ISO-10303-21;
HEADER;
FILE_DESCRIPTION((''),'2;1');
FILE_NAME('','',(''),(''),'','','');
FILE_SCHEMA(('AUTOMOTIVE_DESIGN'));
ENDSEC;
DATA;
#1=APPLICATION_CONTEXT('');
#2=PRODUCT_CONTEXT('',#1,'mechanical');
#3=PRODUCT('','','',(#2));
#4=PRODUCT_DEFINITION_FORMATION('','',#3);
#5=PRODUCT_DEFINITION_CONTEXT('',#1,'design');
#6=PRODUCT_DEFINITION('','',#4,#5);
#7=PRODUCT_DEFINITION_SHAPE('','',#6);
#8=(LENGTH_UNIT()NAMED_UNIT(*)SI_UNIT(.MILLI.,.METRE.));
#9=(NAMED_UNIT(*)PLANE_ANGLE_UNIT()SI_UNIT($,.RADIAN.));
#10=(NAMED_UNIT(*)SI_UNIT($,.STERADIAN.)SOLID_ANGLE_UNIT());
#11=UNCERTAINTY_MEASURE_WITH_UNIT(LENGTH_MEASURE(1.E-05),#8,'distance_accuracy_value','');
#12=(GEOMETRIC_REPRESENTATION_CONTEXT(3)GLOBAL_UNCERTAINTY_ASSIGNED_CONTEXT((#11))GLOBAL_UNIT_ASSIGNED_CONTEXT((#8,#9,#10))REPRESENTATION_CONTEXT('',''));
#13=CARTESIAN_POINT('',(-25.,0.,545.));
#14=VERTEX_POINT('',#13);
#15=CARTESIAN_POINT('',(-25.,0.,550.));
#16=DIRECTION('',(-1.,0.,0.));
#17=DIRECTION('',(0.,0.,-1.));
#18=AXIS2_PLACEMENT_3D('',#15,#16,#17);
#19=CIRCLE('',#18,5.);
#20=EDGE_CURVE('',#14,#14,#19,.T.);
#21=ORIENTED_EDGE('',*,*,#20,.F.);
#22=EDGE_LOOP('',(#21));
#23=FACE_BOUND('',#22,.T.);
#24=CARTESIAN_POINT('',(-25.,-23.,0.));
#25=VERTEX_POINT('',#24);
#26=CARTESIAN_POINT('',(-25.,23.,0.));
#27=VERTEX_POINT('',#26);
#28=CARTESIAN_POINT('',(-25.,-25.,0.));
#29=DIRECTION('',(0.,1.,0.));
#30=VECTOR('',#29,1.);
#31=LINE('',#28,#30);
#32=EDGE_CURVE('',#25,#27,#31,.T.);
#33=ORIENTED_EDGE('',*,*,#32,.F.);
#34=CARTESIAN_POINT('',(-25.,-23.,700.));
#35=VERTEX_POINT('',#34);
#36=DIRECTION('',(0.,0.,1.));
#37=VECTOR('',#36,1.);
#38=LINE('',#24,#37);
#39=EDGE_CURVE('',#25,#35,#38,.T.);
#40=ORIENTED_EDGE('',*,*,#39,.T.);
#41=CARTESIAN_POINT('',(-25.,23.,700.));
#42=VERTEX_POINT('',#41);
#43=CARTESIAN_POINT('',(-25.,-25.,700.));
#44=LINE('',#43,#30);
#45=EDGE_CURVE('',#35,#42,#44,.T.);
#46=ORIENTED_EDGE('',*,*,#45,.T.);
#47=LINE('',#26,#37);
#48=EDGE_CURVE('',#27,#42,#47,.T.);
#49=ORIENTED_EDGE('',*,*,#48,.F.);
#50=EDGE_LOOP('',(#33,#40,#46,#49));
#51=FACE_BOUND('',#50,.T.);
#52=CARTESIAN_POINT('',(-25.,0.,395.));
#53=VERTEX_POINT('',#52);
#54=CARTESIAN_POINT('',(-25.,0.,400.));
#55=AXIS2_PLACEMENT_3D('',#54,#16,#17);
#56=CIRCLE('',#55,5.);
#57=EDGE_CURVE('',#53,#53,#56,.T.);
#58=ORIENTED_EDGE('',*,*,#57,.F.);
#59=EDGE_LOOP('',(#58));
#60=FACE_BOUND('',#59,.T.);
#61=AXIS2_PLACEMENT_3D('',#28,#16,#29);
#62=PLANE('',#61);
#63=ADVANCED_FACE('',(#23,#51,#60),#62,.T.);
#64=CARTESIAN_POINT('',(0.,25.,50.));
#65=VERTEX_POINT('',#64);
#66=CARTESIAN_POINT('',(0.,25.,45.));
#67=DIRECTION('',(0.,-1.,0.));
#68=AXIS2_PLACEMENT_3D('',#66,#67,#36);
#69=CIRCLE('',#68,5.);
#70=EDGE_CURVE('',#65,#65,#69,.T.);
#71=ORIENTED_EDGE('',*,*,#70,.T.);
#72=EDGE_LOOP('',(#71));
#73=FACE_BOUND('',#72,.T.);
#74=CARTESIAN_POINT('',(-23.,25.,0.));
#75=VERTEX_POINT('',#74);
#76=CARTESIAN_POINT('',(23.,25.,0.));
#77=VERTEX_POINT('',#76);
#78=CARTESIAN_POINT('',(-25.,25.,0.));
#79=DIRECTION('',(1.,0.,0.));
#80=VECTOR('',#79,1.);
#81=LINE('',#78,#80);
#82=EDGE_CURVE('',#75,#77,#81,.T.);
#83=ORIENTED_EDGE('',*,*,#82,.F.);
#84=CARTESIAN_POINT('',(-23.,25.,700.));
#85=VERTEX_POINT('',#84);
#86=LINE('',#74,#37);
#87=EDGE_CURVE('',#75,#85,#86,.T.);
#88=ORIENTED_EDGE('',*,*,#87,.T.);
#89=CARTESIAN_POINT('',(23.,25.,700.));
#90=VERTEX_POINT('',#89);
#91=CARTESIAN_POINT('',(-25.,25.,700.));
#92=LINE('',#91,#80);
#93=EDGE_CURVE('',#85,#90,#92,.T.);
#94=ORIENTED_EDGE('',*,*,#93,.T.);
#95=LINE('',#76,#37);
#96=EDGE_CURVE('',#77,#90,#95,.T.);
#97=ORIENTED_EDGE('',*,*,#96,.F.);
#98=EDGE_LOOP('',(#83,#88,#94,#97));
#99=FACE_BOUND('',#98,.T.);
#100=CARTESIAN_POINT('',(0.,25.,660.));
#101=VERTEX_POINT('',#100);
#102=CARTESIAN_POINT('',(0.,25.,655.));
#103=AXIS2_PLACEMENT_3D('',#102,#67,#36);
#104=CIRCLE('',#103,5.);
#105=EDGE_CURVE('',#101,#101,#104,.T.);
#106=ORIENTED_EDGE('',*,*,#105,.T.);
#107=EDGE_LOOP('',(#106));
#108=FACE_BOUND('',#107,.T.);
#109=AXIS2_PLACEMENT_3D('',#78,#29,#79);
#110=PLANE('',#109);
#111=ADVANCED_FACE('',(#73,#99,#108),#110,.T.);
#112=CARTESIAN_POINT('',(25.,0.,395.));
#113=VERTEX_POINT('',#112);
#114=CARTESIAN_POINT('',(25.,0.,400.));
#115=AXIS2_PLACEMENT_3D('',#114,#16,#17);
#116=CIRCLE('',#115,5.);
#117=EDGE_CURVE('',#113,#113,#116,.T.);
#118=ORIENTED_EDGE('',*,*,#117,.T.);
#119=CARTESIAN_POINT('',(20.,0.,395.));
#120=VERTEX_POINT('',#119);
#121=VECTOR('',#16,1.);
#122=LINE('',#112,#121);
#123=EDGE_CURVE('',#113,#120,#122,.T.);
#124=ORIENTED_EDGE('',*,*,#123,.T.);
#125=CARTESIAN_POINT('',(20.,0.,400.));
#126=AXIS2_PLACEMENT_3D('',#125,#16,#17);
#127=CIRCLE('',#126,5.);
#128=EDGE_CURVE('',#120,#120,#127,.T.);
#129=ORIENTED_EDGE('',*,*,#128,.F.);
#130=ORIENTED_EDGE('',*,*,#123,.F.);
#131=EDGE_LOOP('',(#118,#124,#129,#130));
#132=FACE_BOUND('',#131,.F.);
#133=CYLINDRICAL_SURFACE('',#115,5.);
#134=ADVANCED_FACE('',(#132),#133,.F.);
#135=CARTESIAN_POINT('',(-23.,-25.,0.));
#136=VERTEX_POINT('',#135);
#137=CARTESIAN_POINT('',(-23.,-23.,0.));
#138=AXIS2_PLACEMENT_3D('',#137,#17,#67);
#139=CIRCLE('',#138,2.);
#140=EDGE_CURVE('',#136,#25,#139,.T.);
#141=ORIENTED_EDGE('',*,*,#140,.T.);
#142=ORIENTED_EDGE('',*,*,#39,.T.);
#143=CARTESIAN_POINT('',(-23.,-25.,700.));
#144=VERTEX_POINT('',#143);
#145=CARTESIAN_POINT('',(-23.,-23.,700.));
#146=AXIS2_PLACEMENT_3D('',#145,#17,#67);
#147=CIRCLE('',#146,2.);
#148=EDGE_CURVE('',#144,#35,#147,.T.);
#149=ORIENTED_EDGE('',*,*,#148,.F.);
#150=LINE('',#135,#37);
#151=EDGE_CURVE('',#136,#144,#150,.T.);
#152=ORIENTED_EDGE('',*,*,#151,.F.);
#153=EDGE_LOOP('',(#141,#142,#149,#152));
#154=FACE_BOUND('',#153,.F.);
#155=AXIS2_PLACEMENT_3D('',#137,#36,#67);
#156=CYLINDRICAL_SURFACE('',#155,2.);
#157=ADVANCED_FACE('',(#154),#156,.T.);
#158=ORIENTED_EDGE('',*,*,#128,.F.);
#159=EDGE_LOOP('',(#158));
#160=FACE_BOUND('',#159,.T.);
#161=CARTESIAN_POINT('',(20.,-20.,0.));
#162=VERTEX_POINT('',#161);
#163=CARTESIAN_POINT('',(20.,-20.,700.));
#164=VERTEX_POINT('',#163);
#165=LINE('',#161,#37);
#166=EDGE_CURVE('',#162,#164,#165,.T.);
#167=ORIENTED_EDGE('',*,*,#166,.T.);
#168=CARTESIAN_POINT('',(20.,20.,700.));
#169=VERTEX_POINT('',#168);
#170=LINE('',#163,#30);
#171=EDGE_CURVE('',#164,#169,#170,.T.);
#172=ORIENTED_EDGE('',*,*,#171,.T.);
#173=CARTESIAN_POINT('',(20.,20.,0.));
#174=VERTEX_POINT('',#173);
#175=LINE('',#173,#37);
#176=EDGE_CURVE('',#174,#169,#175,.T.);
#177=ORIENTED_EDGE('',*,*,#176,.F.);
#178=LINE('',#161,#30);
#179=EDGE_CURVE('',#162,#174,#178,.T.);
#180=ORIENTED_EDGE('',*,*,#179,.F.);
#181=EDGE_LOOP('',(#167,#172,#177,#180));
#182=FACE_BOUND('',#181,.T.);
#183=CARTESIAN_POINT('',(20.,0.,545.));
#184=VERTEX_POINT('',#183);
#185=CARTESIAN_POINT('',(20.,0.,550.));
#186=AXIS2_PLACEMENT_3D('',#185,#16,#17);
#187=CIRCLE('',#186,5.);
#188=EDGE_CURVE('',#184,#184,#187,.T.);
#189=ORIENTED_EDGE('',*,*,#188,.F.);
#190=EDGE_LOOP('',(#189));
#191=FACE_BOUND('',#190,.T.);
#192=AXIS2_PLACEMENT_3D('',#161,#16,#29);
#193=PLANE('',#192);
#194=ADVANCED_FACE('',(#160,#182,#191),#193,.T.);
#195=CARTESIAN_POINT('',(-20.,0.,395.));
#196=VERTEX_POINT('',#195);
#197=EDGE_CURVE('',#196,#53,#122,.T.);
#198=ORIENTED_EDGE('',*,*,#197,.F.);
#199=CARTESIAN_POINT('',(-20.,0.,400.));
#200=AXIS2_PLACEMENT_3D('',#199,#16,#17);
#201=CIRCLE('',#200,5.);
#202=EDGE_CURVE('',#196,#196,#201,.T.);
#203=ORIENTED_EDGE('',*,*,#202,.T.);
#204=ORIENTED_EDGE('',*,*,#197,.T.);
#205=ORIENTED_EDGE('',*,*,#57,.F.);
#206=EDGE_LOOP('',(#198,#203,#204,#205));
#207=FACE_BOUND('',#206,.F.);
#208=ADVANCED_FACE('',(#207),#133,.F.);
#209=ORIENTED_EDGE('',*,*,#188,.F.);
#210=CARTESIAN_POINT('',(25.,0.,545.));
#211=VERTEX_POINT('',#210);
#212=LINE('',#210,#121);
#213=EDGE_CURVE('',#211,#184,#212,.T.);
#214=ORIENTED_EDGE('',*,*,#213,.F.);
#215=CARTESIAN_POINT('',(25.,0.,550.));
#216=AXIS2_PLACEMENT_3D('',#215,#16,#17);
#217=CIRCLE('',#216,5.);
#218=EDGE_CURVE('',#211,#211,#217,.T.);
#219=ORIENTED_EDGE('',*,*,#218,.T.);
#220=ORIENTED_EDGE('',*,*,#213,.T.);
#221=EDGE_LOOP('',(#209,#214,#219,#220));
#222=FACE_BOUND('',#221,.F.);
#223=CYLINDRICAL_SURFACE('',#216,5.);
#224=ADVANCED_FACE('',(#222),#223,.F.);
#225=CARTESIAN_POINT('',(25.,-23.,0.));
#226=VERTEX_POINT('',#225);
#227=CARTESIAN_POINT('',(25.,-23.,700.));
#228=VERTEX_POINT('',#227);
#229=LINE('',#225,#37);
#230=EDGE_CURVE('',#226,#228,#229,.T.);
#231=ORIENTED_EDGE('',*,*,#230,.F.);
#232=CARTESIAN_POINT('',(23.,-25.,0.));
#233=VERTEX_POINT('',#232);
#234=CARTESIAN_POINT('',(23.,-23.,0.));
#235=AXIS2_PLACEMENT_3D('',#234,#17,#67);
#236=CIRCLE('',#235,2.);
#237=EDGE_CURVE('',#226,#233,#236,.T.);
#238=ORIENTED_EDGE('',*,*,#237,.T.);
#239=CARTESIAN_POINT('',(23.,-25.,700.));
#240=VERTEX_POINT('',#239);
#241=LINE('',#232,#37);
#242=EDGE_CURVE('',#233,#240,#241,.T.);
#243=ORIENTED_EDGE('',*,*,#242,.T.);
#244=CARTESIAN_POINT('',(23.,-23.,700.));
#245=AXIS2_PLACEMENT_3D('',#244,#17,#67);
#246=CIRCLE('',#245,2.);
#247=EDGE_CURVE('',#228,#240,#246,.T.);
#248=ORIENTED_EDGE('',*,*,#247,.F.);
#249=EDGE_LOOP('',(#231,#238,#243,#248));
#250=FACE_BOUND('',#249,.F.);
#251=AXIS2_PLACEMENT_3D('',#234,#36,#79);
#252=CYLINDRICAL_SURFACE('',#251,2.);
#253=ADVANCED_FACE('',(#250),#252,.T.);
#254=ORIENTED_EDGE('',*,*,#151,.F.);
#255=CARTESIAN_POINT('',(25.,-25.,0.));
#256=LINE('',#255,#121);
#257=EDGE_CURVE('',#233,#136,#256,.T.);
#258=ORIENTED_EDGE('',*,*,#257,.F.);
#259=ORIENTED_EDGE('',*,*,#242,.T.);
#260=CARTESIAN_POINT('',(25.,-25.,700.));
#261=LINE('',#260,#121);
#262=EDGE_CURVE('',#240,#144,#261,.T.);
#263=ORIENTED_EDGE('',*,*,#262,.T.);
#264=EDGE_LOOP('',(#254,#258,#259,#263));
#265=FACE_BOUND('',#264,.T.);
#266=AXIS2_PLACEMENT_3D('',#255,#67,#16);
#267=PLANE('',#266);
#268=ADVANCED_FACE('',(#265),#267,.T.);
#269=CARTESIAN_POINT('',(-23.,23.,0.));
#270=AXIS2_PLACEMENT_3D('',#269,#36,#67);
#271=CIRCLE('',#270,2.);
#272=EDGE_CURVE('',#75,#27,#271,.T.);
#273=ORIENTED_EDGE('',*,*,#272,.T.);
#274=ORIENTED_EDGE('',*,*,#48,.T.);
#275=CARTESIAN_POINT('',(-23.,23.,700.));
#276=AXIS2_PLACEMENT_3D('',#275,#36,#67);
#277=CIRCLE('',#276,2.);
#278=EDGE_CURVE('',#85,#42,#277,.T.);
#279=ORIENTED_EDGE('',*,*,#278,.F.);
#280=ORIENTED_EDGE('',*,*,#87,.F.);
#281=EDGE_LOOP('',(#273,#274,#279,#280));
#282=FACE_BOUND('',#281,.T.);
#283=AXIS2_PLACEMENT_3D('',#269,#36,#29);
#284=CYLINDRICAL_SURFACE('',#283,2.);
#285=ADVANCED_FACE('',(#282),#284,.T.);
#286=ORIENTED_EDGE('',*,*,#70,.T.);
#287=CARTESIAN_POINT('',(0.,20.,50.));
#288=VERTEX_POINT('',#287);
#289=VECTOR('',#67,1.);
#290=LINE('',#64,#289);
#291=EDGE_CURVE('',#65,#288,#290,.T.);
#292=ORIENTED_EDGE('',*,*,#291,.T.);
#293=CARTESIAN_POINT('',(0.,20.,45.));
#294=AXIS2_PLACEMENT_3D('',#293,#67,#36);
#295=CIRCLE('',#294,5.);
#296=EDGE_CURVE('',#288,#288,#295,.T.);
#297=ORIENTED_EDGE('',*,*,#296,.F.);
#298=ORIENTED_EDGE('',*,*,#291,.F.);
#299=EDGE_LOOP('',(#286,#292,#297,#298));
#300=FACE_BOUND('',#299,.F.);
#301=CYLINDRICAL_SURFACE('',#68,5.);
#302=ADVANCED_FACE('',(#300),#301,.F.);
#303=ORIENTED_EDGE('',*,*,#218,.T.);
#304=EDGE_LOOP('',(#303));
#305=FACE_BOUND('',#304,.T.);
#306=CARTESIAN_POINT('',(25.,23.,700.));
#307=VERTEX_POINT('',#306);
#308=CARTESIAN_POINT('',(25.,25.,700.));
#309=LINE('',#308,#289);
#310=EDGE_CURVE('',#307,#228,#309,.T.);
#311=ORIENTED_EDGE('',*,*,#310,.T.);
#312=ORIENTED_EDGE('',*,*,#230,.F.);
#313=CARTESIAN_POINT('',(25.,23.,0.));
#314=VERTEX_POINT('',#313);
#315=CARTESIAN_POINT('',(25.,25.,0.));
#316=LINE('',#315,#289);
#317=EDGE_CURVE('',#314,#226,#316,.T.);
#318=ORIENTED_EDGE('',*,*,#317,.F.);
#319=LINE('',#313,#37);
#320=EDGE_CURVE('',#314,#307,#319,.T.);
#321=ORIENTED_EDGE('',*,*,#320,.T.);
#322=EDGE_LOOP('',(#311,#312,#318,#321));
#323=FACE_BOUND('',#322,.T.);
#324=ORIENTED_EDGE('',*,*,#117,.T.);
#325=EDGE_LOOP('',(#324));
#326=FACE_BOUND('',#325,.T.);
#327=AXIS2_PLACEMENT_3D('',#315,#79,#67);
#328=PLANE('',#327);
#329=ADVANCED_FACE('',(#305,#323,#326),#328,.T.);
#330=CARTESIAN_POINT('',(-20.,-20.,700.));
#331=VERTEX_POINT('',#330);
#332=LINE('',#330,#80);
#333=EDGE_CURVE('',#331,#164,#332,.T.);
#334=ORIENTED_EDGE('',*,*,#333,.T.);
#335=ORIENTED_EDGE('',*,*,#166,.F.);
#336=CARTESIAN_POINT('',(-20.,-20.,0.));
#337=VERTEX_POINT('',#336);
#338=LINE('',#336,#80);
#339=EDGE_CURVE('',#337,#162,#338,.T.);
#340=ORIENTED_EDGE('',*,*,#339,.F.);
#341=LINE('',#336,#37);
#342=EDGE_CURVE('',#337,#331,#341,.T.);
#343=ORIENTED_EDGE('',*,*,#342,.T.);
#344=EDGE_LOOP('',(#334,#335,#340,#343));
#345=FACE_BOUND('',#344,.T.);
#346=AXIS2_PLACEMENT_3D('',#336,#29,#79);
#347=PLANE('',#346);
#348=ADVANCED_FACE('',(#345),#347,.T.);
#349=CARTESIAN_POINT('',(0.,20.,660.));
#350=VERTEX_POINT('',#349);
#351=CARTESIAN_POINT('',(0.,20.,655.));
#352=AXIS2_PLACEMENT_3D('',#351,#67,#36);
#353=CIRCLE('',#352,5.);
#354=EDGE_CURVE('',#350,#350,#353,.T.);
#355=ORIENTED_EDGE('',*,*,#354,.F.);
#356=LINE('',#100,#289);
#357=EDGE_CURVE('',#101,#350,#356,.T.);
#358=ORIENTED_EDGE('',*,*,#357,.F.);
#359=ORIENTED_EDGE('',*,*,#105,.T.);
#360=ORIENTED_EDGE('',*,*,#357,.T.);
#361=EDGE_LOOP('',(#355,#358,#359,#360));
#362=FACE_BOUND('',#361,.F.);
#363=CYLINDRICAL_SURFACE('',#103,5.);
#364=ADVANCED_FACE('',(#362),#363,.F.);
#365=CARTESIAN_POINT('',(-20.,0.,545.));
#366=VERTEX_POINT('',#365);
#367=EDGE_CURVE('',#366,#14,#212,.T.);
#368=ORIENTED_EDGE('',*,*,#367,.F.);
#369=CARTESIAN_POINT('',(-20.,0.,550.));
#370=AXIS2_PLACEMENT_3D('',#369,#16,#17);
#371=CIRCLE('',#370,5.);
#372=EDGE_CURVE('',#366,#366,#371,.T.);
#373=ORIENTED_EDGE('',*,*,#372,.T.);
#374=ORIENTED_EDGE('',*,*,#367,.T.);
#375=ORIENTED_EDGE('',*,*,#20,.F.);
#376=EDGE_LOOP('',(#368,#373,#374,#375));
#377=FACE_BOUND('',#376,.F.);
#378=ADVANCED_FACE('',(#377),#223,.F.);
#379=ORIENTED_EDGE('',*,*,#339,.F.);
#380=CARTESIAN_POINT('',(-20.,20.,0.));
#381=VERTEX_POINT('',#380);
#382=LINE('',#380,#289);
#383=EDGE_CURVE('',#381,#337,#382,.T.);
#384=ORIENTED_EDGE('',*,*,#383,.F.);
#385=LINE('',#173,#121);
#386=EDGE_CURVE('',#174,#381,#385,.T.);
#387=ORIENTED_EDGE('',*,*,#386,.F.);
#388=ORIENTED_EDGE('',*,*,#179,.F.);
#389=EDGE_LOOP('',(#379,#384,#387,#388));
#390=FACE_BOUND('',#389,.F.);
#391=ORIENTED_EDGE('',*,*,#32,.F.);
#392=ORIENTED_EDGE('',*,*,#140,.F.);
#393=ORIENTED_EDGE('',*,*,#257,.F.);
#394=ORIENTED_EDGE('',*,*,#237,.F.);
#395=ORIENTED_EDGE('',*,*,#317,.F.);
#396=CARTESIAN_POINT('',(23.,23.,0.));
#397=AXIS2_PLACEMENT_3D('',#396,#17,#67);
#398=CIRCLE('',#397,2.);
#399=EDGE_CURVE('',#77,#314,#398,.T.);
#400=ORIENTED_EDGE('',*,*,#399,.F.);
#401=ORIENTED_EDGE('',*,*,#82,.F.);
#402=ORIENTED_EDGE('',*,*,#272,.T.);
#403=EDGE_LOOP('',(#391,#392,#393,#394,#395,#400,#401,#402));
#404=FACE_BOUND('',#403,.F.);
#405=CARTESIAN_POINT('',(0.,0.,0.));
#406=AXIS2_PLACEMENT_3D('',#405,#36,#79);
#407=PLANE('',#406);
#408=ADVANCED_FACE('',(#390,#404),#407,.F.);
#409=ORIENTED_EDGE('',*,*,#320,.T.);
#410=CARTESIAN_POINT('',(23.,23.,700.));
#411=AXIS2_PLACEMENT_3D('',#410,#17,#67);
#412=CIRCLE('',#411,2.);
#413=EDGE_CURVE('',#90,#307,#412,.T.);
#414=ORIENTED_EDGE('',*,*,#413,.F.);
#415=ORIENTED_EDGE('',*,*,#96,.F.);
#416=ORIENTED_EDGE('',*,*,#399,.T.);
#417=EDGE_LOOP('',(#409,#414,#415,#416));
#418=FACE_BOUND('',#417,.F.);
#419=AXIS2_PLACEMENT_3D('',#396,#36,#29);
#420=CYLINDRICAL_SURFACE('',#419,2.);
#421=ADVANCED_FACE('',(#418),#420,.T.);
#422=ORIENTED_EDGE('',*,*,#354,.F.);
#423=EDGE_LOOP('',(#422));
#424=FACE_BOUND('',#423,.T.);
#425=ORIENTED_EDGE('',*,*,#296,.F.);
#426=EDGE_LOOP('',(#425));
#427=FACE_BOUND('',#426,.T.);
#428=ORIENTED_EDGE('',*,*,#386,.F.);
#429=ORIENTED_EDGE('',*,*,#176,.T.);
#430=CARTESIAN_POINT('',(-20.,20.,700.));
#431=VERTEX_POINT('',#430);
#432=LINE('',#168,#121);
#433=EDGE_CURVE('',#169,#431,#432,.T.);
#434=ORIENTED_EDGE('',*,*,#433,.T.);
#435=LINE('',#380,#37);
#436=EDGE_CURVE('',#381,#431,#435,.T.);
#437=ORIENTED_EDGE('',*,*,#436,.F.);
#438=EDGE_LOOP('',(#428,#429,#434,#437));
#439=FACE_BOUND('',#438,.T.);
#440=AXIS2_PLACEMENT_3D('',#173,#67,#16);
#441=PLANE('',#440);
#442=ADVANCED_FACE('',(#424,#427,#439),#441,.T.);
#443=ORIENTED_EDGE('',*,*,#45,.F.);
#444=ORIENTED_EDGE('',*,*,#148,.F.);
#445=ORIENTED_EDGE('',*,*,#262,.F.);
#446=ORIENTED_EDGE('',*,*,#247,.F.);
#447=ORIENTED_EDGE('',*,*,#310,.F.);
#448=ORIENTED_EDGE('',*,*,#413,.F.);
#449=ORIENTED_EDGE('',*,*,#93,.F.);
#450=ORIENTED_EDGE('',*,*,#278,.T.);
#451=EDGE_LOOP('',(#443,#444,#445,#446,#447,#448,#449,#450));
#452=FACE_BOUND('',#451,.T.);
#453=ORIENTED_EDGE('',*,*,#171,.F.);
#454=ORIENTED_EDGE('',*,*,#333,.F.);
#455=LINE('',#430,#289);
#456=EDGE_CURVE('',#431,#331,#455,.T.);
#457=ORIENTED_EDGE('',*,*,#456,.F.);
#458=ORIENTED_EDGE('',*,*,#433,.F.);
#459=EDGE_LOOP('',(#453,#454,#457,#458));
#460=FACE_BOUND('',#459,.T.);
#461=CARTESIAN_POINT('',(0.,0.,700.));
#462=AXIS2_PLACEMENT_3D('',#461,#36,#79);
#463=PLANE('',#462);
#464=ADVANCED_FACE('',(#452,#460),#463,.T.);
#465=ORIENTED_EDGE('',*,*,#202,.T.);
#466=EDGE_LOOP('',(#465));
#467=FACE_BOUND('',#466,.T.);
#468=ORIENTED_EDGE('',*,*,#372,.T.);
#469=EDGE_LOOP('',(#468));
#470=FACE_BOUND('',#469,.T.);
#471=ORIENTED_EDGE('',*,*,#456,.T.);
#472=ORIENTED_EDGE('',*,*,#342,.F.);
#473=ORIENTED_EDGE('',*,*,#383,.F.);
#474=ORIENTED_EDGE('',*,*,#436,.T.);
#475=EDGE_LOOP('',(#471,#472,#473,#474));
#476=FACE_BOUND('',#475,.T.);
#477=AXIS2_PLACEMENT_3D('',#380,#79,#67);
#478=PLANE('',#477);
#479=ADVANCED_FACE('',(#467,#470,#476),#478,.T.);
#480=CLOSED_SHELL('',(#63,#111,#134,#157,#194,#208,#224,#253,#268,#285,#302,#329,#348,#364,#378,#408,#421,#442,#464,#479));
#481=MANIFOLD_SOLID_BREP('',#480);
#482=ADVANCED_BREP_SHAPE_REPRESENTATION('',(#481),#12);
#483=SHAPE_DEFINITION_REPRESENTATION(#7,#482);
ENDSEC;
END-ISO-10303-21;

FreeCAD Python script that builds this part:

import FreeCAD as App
import Part
import Sketcher


def edges_at(feature, points):
    """Names of the edges that pass closest to the given points."""
    edges = feature.Shape.Edges
    near = lambda p: min(range(len(edges)), key=lambda i: edges[i].distToShape(Part.Vertex(*p))[0])
    return sorted({f"Edge{near(p) + 1}" for p in points})

doc = App.newDocument("Part")
body = doc.addObject("PartDesign::Body", "Body")

# Sketch on XY plane
sketch1 = body.newObject("Sketcher::SketchObject", "Sketch")
sketch1.AttachmentSupport = (doc.getObject("XY_Plane"), [""])
sketch1.MapMode = "FlatFace"
sketch1.addGeometry([
    Part.LineSegment(App.Vector(25, 25, 0), App.Vector(-25, 25, 0)),  # 0
    Part.LineSegment(App.Vector(-25, 25, 0), App.Vector(-25, -25, 0)),  # 1
    Part.LineSegment(App.Vector(-25, -25, 0), App.Vector(25, -25, 0)),  # 2
    Part.LineSegment(App.Vector(25, -25, 0), App.Vector(25, 25, 0)),  # 3
    Part.LineSegment(App.Vector(-20, 20, 0), App.Vector(20, 20, 0)),  # 4
    Part.LineSegment(App.Vector(20, 20, 0), App.Vector(20, -20, 0)),  # 5
    Part.LineSegment(App.Vector(20, -20, 0), App.Vector(-20, -20, 0)),  # 6
    Part.LineSegment(App.Vector(-20, -20, 0), App.Vector(-20, 20, 0)),  # 7
], False)
sketch1.addConstraint([
    Sketcher.Constraint("Coincident", 0, 2, 1, 1),
    Sketcher.Constraint("Coincident", 1, 2, 2, 1),
    Sketcher.Constraint("Coincident", 2, 2, 3, 1),
    Sketcher.Constraint("Coincident", 3, 2, 0, 1),
    Sketcher.Constraint("Coincident", 4, 2, 5, 1),
    Sketcher.Constraint("Coincident", 5, 2, 6, 1),
    Sketcher.Constraint("Coincident", 6, 2, 7, 1),
    Sketcher.Constraint("Coincident", 7, 2, 4, 1),
    Sketcher.Constraint("Horizontal", 0),
    Sketcher.Constraint("Vertical", 1),
    Sketcher.Constraint("Horizontal", 2),
    Sketcher.Constraint("Vertical", 3),
    Sketcher.Constraint("Horizontal", 4),
    Sketcher.Constraint("Vertical", 5),
    Sketcher.Constraint("Horizontal", 6),
    Sketcher.Constraint("Vertical", 7),
    Sketcher.Constraint("Symmetric", 0, 2, 2, 2, -1, 1),
    Sketcher.Constraint("Symmetric", 4, 2, 6, 2, -1, 1),
    Sketcher.Constraint("Equal", 2, 1),
    Sketcher.Constraint("Equal", 6, 5),
    Sketcher.Constraint("DistanceX", 0, 2, 0, 1, 50.0),
    Sketcher.Constraint("DistanceX", 4, 2, 3, 2, 5.0),
])
pad1 = body.newObject("PartDesign::Pad", "Pad")
pad1.Profile = sketch1
pad1.Length = 700
doc.recompute()

fillet = body.newObject("PartDesign::Fillet", "Fillet")
fillet.Base = (pad1, edges_at(pad1, [
    (25, 25, 350),
    (-25, 25, 350),
    (25, -25, 350),
    (-25, -25, 350),
]))
fillet.Radius = 2

# Sketch on XZ plane
sketch2 = body.newObject("Sketcher::SketchObject", "Sketch001")
sketch2.AttachmentSupport = (doc.getObject("XZ_Plane"), [""])
sketch2.MapMode = "FlatFace"
sketch2.AttachmentOffset = App.Placement(App.Vector(0, 0, -25), App.Rotation())
sketch2.addGeometry([
    Part.Circle(App.Vector(0, 45, 0), App.Vector(0, 0, 1), 5),
    Part.Circle(App.Vector(0, 655, 0), App.Vector(0, 0, 1), 5),
], False)
sketch2.addConstraint([
    Sketcher.Constraint("Equal", 0, 1),
    Sketcher.Constraint("PointOnObject", 0, 3, -2),
    Sketcher.Constraint("PointOnObject", 1, 3, -2),
    Sketcher.Constraint("Diameter", 0, 10.0),
    Sketcher.Constraint("DistanceY", -1, 1, 0, 3, 45.0),
    Sketcher.Constraint("DistanceY", -1, 1, 1, 3, 655.0),
])
doc.recompute()
hole = body.newObject("PartDesign::Hole", "Hole")
hole.Profile = sketch2
hole.ThreadType = "None"
hole.Diameter = 10
hole.DepthType = "Dimension"
hole.Depth = 5
hole.DrillPoint = "Flat"
hole.Reversed = True

# Sketch on YZ plane
sketch3 = body.newObject("Sketcher::SketchObject", "Sketch002")
sketch3.AttachmentSupport = (doc.getObject("YZ_Plane"), [""])
sketch3.MapMode = "FlatFace"
sketch3.AttachmentOffset = App.Placement(App.Vector(0, 0, 25), App.Rotation())
sketch3.addGeometry([
    Part.Circle(App.Vector(0, 400, 0), App.Vector(0, 0, 1), 5),
    Part.Circle(App.Vector(0, 550, 0), App.Vector(0, 0, 1), 5),
], False)
sketch3.addConstraint([
    Sketcher.Constraint("Equal", 0, 1),
    Sketcher.Constraint("PointOnObject", 0, 3, -2),
    Sketcher.Constraint("PointOnObject", 1, 3, -2),
    Sketcher.Constraint("Diameter", 0, 10.0),
    Sketcher.Constraint("DistanceY", -1, 1, 0, 3, 400.0),
    Sketcher.Constraint("DistanceY", -1, 1, 1, 3, 550.0),
])
doc.recompute()
hole2 = body.newObject("PartDesign::Hole", "Hole001")
hole2.Profile = sketch3
hole2.ThreadType = "None"
hole2.Diameter = 10
hole2.DepthType = "ThroughAll"

doc.recompute()
